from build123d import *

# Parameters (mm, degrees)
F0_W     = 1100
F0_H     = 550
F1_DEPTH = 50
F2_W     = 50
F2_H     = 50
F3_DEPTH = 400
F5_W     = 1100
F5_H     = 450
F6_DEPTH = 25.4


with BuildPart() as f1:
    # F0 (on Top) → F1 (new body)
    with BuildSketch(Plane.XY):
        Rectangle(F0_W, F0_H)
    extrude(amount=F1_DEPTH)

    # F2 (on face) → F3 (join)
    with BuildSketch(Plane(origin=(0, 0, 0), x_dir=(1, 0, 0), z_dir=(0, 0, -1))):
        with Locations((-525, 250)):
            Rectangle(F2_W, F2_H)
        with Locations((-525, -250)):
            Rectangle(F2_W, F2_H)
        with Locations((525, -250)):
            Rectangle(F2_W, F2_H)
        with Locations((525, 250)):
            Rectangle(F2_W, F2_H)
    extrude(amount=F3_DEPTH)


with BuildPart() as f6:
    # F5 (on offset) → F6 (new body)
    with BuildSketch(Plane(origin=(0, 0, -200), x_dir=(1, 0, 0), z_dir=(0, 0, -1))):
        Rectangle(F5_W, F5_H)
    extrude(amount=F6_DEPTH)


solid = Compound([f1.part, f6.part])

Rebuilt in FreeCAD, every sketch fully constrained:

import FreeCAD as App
import Part
import Sketcher

doc = App.newDocument("Part")
body = doc.addObject("PartDesign::Body", "Body")

# Sketch on XY plane
sketch1 = body.newObject("Sketcher::SketchObject", "Sketch")
sketch1.AttachmentSupport = (doc.getObject("XY_Plane"), [""])
sketch1.MapMode = "FlatFace"
sketch1.addGeometry([
    Part.LineSegment(App.Vector(-550, 275, 0), App.Vector(-550, -275, 0)),
    Part.LineSegment(App.Vector(-550, -275, 0), App.Vector(550, -275, 0)),
    Part.LineSegment(App.Vector(550, -275, 0), App.Vector(550, 275, 0)),
    Part.LineSegment(App.Vector(550, 275, 0), App.Vector(-550, 275, 0)),
], False)
sketch1.addConstraint([
    Sketcher.Constraint("Coincident", 0, 2, 1, 1),
    Sketcher.Constraint("Coincident", 1, 2, 2, 1),
    Sketcher.Constraint("Coincident", 2, 2, 3, 1),
    Sketcher.Constraint("Coincident", 3, 2, 0, 1),
    Sketcher.Constraint("Vertical", 0),
    Sketcher.Constraint("Horizontal", 1),
    Sketcher.Constraint("Vertical", 2),
    Sketcher.Constraint("Horizontal", 3),
    Sketcher.Constraint("Symmetric", 0, 2, 2, 2, -1, 1),
    Sketcher.Constraint("DistanceX", 1, 1, 1, 2, 1100.0),
    Sketcher.Constraint("DistanceY", 0, 2, 0, 1, 550.0),
])
pad1 = body.newObject("PartDesign::Pad", "Pad")
pad1.Profile = sketch1
pad1.Length = 50

# Sketch on XY plane
sketch2 = body.newObject("Sketcher::SketchObject", "Sketch001")
sketch2.AttachmentSupport = (doc.getObject("XY_Plane"), [""])
sketch2.MapMode = "FlatFace"
sketch2.addGeometry([
    Part.LineSegment(App.Vector(-550, -275, 0), App.Vector(-550, -225, 0)),  # 0
    Part.LineSegment(App.Vector(-550, -225, 0), App.Vector(-500, -225, 0)),  # 1
    Part.LineSegment(App.Vector(-500, -225, 0), App.Vector(-500, -275, 0)),  # 2
    Part.LineSegment(App.Vector(-500, -275, 0), App.Vector(-550, -275, 0)),  # 3
    Part.LineSegment(App.Vector(-550, 225, 0), App.Vector(-550, 275, 0)),  # 4
    Part.LineSegment(App.Vector(-550, 275, 0), App.Vector(-500, 275, 0)),  # 5
    Part.LineSegment(App.Vector(-500, 275, 0), App.Vector(-500, 225, 0)),  # 6
    Part.LineSegment(App.Vector(-500, 225, 0), App.Vector(-550, 225, 0)),  # 7
    Part.LineSegment(App.Vector(500, 225, 0), App.Vector(500, 275, 0)),  # 8
    Part.LineSegment(App.Vector(500, 275, 0), App.Vector(550, 275, 0)),  # 9
    Part.LineSegment(App.Vector(550, 275, 0), App.Vector(550, 225, 0)),  # 10
    Part.LineSegment(App.Vector(550, 225, 0), App.Vector(500, 225, 0)),  # 11
    Part.LineSegment(App.Vector(500, -275, 0), App.Vector(500, -225, 0)),  # 12
    Part.LineSegment(App.Vector(500, -225, 0), App.Vector(550, -225, 0)),  # 13
    Part.LineSegment(App.Vector(550, -225, 0), App.Vector(550, -275, 0)),  # 14
    Part.LineSegment(App.Vector(550, -275, 0), App.Vector(500, -275, 0)),  # 15
], False)
sketch2.addConstraint([
    Sketcher.Constraint("Coincident", 0, 2, 1, 1),
    Sketcher.Constraint("Coincident", 1, 2, 2, 1),
    Sketcher.Constraint("Coincident", 2, 2, 3, 1),
    Sketcher.Constraint("Coincident", 3, 2, 0, 1),
    Sketcher.Constraint("Coincident", 4, 2, 5, 1),
    Sketcher.Constraint("Coincident", 5, 2, 6, 1),
    Sketcher.Constraint("Coincident", 6, 2, 7, 1),
    Sketcher.Constraint("Coincident", 7, 2, 4, 1),
    Sketcher.Constraint("Coincident", 8, 2, 9, 1),
    Sketcher.Constraint("Coincident", 9, 2, 10, 1),
    Sketcher.Constraint("Coincident", 10, 2, 11, 1),
    Sketcher.Constraint("Coincident", 11, 2, 8, 1),
    Sketcher.Constraint("Coincident", 12, 2, 13, 1),
    Sketcher.Constraint("Coincident", 13, 2, 14, 1),
    Sketcher.Constraint("Coincident", 14, 2, 15, 1),
    Sketcher.Constraint("Coincident", 15, 2, 12, 1),
    Sketcher.Constraint("Vertical", 0),
    Sketcher.Constraint("Horizontal", 1),
    Sketcher.Constraint("Vertical", 2),
    Sketcher.Constraint("Horizontal", 3),
    Sketcher.Constraint("Vertical", 4),
    Sketcher.Constraint("Horizontal", 5),
    Sketcher.Constraint("Vertical", 6),
    Sketcher.Constraint("Horizontal", 7),
    Sketcher.Constraint("Vertical", 8),
    Sketcher.Constraint("Horizontal", 9),
    Sketcher.Constraint("Vertical", 10),
    Sketcher.Constraint("Horizontal", 11),
    Sketcher.Constraint("Vertical", 12),
    Sketcher.Constraint("Horizontal", 13),
    Sketcher.Constraint("Vertical", 14),
    Sketcher.Constraint("Horizontal", 15),
    Sketcher.Constraint("Symmetric", 2, 2, 8, 2, -1, 1),
    Sketcher.Constraint("Symmetric", 0, 2, 10, 2, -1, 1),
    Sketcher.Constraint("Symmetric", 6, 2, 12, 2, -1, 1),
    Sketcher.Constraint("Symmetric", 4, 2, 14, 2, -1, 1),
    Sketcher.Constraint("Symmetric", 5, 2, 8, 2, -2),
    Sketcher.Constraint("Symmetric", 7, 2, 10, 2, -2),
    Sketcher.Constraint("Equal", 15, 0),
    Sketcher.Constraint("DistanceX", 1, 1, 1, 2, 50.0),
    Sketcher.Constraint("DistanceX", 0, 2, -1, 1, 550.0),
    Sketcher.Constraint("DistanceY", 0, 2, -1, 1, 225.0),
])
pad2 = body.newObject("PartDesign::Pad", "Pad001")
pad2.Profile = sketch2
pad2.Length = 400
pad2.Reversed = True
body2 = doc.addObject("PartDesign::Body", "Body001")

# Sketch on XY plane
sketch3 = body2.newObject("Sketcher::SketchObject", "Sketch002")
sketch3.AttachmentSupport = (doc.getObject("XY_Plane001"), [""])
sketch3.MapMode = "FlatFace"
sketch3.AttachmentOffset = App.Placement(App.Vector(0, 0, -200), App.Rotation())
sketch3.addGeometry([
    Part.LineSegment(App.Vector(-550, -225, 0), App.Vector(-550, 225, 0)),
    Part.LineSegment(App.Vector(-550, 225, 0), App.Vector(550, 225, 0)),
    Part.LineSegment(App.Vector(550, 225, 0), App.Vector(550, -225, 0)),
    Part.LineSegment(App.Vector(550, -225, 0), App.Vector(-550, -225, 0)),
], False)
sketch3.addConstraint([
    Sketcher.Constraint("Coincident", 0, 2, 1, 1),
    Sketcher.Constraint("Coincident", 1, 2, 2, 1),
    Sketcher.Constraint("Coincident", 2, 2, 3, 1),
    Sketcher.Constraint("Coincident", 3, 2, 0, 1),
    Sketcher.Constraint("Vertical", 0),
    Sketcher.Constraint("Horizontal", 1),
    Sketcher.Constraint("Vertical", 2),
    Sketcher.Constraint("Horizontal", 3),
    Sketcher.Constraint("Symmetric", 0, 2, 2, 2, -1, 1),
    Sketcher.Constraint("DistanceX", 1, 1, 1, 2, 1100.0),
    Sketcher.Constraint("DistanceY", 0, 1, 0, 2, 450.0),
])
pad3 = body2.newObject("PartDesign::Pad", "Pad002")
pad3.Profile = sketch3
pad3.Length = 25.4
pad3.Reversed = True

doc.recompute()
